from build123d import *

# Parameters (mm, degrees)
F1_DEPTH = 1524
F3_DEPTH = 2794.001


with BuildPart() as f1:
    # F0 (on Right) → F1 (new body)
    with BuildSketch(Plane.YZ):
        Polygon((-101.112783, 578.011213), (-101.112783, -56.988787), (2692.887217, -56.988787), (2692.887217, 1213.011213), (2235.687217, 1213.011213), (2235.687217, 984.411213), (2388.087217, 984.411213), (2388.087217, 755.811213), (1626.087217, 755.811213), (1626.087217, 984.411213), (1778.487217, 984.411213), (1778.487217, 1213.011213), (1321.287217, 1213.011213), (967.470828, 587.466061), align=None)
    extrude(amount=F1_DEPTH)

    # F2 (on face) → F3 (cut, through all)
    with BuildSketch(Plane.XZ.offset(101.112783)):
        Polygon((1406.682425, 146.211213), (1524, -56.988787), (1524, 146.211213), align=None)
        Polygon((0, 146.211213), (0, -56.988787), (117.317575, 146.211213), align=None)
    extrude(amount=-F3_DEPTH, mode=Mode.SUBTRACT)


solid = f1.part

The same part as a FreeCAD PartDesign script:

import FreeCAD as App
import Part
import Sketcher

V = App.Vector
Q = App.Units.Quantity


def add_polygon(sketch, points):
    """Adds a closed chain of lines whose ends are joined by coincident constraints."""
    first, n = sketch.GeometryCount, len(points)
    for a, b in zip(points, points[1:] + points[:1]):
        sketch.addGeometry(Part.LineSegment(App.Vector(*a, 0), App.Vector(*b, 0)), False)
    for i in range(n):
        sketch.addConstraint(Sketcher.Constraint("Coincident", first + i, 2, first + (i + 1) % n, 1))

doc = App.newDocument("Part")
body = doc.addObject("PartDesign::Body", "Body")

# Sketch on YZ plane
sketch1 = doc.addObject("Sketcher::SketchObject", "Sketch")
body.addObject(sketch1)
sketch1.AttachmentSupport = (doc.YZ_Plane, [""])
sketch1.MapMode = "FlatFace"
add_polygon(sketch1, [(-101, 578), (-101, -57), (2693, -57), (2693, 1213), (2236, 1213), (2236, 984), (2388, 984), (2388, 756), (1626, 756), (1626, 984), (1778, 984), (1778, 1213), (1321, 1213), (967, 587)])  # lines 0-13
sketch1.addConstraint(Sketcher.Constraint("Vertical", 0))
sketch1.addConstraint(Sketcher.Constraint("Horizontal", 1))
sketch1.addConstraint(Sketcher.Constraint("Vertical", 2))
sketch1.addConstraint(Sketcher.Constraint("Horizontal", 3))
sketch1.addConstraint(Sketcher.Constraint("Vertical", 4))
sketch1.addConstraint(Sketcher.Constraint("Horizontal", 5))
sketch1.addConstraint(Sketcher.Constraint("Vertical", 6))
sketch1.addConstraint(Sketcher.Constraint("Horizontal", 7))
sketch1.addConstraint(Sketcher.Constraint("Vertical", 8))
sketch1.addConstraint(Sketcher.Constraint("Horizontal", 9))
sketch1.addConstraint(Sketcher.Constraint("Vertical", 10))
sketch1.addConstraint(Sketcher.Constraint("Horizontal", 11))
sketch1.addConstraint(Sketcher.Constraint("Horizontal", 5, 2, 8, 2))
sketch1.addConstraint(Sketcher.Constraint("Horizontal", 3, 2, 10, 2))
sketch1.addConstraint(Sketcher.Constraint("Equal", 5, 9))
sketch1.addConstraint(Sketcher.Constraint("Equal", 3, 11))
sketch1.addConstraint(Sketcher.Constraint("Equal", 4, 6))
sketch1.addConstraint(Sketcher.Constraint("DistanceX", 1, 1, 1, 2, Q("110 in")))
sketch1.addConstraint(Sketcher.Constraint("DistanceX", 3, 2, 3, 1, Q("18 in")))
sketch1.addConstraint(Sketcher.Constraint("DistanceX", 5, 1, 5, 2, Q("6 in")))
sketch1.addConstraint(Sketcher.Constraint("DistanceX", 7, 2, 7, 1, Q("30 in")))
sketch1.addConstraint(Sketcher.Constraint("DistanceY", 0, 2, 0, 1, Q("25 in")))
sketch1.addConstraint(Sketcher.Constraint("DistanceY", 2, 1, 2, 2, Q("50 in")))
sketch1.addConstraint(Sketcher.Constraint("DistanceY", 4, 2, 4, 1, Q("9 in")))
sketch1.addConstraint(Sketcher.Constraint("Distance", 13, Q("1068.625439 mm")))
sketch1.addConstraint(Sketcher.Constraint("DistanceX", -1, 1, 12, 2, Q("967.470828 mm")))
sketch1.addConstraint(Sketcher.Constraint("DistanceY", -1, 1, 12, 2, Q("587.466061 mm")))
sketch1.addConstraint(Sketcher.Constraint("DistanceY", 12, 2, 7, 2, Q("168.345152 mm")))
pad1 = doc.addObject("PartDesign::Pad", "Pad")
body.addObject(pad1)
pad1.Profile = sketch1
pad1.Length = Q("60 in")

# Sketch on XZ plane
sketch2 = doc.addObject("Sketcher::SketchObject", "Sketch001")
body.addObject(sketch2)
sketch2.AttachmentSupport = (doc.XZ_Plane, [""])
sketch2.MapMode = "FlatFace"
sketch2.AttachmentOffset = App.Placement(V(0, 0, 101.112783), App.Rotation())
add_polygon(sketch2, [(1407, 146), (1524, -57), (1524, 146)])  # lines 0-2
add_polygon(sketch2, [(0, 146), (0, -57), (117, 146)])  # lines 3-5
sketch2.addConstraint(Sketcher.Constraint("Vertical", 1))
sketch2.addConstraint(Sketcher.Constraint("Horizontal", 2))
sketch2.addConstraint(Sketcher.Constraint("Vertical", 3))
sketch2.addConstraint(Sketcher.Constraint("Horizontal", 5))
sketch2.addConstraint(Sketcher.Constraint("PointOnObject", 3, 2, -2))
sketch2.addConstraint(Sketcher.Constraint("Horizontal", 0, 2, 3, 2))
sketch2.addConstraint(Sketcher.Constraint("Horizontal", 2, 2, 4, 2))
sketch2.addConstraint(Sketcher.Constraint("Equal", 2, 5))
sketch2.addConstraint(Sketcher.Constraint("DistanceY", 1, 1, 1, 2, Q("8 in")))
sketch2.addConstraint(Sketcher.Constraint("DistanceX", -1, 1, 0, 2, Q("60 in")))
sketch2.addConstraint(Sketcher.Constraint("Angle", 0, Q("-60 deg")))
sketch2.addConstraint(Sketcher.Constraint("DistanceY", 0, 2, -1, 1, Q("56.988787 mm")))
pocket1 = doc.addObject("PartDesign::Pocket", "Pocket")
body.addObject(pocket1)
pocket1.Profile = sketch2
pocket1.Type = "ThroughAll"

doc.recompute()
